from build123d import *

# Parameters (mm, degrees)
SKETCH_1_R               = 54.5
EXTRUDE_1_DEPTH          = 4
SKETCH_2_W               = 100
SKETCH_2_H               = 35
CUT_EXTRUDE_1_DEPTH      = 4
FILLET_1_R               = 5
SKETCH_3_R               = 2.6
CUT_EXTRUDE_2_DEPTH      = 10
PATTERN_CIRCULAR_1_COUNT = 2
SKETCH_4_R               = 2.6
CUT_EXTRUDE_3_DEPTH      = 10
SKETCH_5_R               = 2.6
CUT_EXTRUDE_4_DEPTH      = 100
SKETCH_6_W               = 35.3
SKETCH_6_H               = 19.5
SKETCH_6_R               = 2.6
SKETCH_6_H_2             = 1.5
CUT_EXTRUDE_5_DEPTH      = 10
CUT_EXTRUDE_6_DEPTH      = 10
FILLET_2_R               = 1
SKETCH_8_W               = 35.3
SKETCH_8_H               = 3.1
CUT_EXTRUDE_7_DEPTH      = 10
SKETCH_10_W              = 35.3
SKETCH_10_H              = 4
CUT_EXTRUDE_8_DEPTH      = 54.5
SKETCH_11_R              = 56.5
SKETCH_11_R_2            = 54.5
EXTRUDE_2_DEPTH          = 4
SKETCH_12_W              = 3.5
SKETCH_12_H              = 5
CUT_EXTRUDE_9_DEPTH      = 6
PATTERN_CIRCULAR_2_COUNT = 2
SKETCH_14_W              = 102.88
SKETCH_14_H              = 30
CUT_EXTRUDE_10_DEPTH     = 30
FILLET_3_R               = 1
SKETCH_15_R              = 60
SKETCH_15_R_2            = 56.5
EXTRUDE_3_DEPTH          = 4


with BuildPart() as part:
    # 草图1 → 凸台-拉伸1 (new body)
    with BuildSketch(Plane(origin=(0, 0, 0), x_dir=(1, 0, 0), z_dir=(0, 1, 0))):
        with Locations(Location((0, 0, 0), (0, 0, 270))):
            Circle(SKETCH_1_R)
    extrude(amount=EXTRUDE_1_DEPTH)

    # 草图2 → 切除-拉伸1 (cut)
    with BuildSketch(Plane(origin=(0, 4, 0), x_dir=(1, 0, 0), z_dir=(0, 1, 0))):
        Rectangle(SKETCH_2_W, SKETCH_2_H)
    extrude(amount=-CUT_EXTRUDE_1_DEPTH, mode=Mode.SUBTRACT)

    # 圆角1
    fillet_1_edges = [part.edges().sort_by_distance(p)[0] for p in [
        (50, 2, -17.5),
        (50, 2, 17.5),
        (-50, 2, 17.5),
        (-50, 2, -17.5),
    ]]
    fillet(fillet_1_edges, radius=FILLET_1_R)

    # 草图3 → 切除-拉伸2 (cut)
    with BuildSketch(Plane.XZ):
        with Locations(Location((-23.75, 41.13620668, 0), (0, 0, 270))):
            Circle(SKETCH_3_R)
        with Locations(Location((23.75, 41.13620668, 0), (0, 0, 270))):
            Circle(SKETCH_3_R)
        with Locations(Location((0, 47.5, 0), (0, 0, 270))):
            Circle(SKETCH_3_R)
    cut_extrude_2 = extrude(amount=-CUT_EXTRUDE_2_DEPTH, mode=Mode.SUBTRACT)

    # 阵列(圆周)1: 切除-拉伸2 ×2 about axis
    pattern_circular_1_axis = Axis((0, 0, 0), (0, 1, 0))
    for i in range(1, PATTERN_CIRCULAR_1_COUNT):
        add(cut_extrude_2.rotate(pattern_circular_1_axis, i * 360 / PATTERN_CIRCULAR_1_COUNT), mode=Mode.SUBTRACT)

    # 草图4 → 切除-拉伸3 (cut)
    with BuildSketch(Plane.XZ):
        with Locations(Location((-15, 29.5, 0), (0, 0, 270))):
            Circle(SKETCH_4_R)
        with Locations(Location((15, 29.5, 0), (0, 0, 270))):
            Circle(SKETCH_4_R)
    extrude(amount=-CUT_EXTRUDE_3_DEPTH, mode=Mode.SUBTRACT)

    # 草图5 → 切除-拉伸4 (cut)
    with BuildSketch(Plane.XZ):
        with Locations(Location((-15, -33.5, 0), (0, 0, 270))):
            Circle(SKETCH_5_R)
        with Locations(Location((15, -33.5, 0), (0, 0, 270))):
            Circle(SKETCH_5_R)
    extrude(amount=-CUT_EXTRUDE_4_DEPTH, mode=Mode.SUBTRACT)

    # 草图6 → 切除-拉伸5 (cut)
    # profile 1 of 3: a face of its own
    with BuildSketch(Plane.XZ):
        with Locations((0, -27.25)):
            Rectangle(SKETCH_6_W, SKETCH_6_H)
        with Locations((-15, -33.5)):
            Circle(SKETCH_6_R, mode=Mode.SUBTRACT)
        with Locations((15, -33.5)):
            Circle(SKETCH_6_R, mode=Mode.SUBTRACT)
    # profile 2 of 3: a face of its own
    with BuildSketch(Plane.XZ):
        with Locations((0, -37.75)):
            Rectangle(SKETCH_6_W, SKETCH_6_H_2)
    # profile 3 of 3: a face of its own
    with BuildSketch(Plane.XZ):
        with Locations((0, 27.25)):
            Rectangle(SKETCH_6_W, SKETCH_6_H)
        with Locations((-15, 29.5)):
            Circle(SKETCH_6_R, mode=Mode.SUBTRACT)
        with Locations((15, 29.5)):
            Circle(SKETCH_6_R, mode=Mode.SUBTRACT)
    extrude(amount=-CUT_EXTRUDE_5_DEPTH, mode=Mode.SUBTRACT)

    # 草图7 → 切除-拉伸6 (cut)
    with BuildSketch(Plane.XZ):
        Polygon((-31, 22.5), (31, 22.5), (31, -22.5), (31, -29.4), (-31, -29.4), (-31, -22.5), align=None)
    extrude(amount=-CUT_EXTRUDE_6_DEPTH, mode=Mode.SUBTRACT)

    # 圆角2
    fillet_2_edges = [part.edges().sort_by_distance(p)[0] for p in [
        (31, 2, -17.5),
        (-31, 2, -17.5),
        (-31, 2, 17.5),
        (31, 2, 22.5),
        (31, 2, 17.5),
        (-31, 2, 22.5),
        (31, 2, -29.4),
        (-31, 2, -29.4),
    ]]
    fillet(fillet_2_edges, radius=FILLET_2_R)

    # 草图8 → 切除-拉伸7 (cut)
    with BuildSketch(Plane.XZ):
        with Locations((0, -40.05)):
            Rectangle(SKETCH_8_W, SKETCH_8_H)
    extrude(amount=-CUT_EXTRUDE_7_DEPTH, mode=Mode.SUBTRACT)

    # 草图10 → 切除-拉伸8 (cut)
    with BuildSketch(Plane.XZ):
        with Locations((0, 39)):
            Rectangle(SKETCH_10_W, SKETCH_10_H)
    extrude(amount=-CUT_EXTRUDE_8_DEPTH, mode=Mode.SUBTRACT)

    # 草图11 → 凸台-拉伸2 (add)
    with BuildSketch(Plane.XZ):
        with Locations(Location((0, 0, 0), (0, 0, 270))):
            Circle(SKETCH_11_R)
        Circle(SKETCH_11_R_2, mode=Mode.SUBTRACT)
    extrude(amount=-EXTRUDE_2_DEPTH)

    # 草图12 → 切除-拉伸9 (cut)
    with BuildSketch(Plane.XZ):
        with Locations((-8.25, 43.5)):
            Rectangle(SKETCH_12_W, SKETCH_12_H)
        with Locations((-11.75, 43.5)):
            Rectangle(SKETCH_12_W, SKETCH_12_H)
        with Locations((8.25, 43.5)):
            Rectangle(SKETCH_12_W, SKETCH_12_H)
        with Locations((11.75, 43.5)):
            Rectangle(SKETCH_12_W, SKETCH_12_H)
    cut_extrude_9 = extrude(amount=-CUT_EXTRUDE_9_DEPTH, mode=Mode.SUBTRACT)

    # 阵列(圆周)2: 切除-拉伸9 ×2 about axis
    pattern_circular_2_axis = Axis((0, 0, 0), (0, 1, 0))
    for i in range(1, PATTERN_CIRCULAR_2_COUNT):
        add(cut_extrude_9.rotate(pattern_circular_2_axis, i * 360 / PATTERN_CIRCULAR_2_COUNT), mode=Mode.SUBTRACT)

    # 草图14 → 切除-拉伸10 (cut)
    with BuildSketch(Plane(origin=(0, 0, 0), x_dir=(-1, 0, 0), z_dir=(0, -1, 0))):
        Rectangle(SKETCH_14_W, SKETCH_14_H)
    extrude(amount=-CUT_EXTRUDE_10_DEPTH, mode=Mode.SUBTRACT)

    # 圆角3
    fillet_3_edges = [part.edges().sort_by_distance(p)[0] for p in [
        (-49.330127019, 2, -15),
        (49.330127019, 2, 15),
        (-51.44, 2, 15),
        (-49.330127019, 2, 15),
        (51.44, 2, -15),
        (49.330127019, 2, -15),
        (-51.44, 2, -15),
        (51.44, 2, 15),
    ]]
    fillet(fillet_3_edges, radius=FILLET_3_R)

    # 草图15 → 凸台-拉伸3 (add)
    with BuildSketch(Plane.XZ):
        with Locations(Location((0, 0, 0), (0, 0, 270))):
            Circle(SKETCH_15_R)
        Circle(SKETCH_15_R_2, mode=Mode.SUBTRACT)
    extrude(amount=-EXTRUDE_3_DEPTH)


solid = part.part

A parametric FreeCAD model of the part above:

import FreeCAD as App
import Part
import Sketcher


def edges_at(feature, points):
    """Names of the edges that pass closest to the given points."""
    edges = feature.Shape.Edges
    near = lambda p: min(range(len(edges)), key=lambda i: edges[i].distToShape(Part.Vertex(*p))[0])
    return sorted({f"Edge{near(p) + 1}" for p in points})


def add_polygon(sketch, points):
    """Adds a closed chain of lines whose ends are joined by coincident constraints."""
    first, n = sketch.GeometryCount, len(points)
    for a, b in zip(points, points[1:] + points[:1]):
        sketch.addGeometry(Part.LineSegment(App.Vector(*a, 0), App.Vector(*b, 0)), False)
    for i in range(n):
        sketch.addConstraint(Sketcher.Constraint("Coincident", first + i, 2, first + (i + 1) % n, 1))

doc = App.newDocument("Part")
body = doc.addObject("PartDesign::Body", "Body")

sketch1 = body.newObject("Sketcher::SketchObject", "Sketch")
sketch1.AttachmentSupport = (doc.getObject("XZ_Plane"), [""])
sketch1.MapMode = "FlatFace"
sketch1.addGeometry(Part.Circle(App.Vector(0, 0, 0), App.Vector(0, 0, 1), 54), False)
sketch1.addConstraint(Sketcher.Constraint("Coincident", 0, 3, -1, 1))
sketch1.addConstraint(Sketcher.Constraint("Diameter", 0, 109.0))
pad1 = body.newObject("PartDesign::Pad", "Pad")
pad1.Profile = sketch1
pad1.Length = 4
pad1.Reversed = True

sketch2 = body.newObject("Sketcher::SketchObject", "Sketch001")
sketch2.AttachmentSupport = (doc.getObject("XZ_Plane"), [""])
sketch2.MapMode = "FlatFace"
sketch2.AttachmentOffset = App.Placement(App.Vector(0, 0, -4), App.Rotation())
add_polygon(sketch2, [(-50, -18), (-50, 18), (50, 18), (50, -18)])
sketch2.addConstraint(Sketcher.Constraint("Vertical", 0))
sketch2.addConstraint(Sketcher.Constraint("Horizontal", 1))
sketch2.addConstraint(Sketcher.Constraint("Vertical", 2))
sketch2.addConstraint(Sketcher.Constraint("Horizontal", 3))
sketch2.addConstraint(Sketcher.Constraint("Symmetric", 0, 2, 2, 2, -1, 1))
sketch2.addConstraint(Sketcher.Constraint("DistanceX", 1, 1, 1, 2, 100.0))
sketch2.addConstraint(Sketcher.Constraint("DistanceY", 0, 1, 0, 2, 35.0))
pocket1 = body.newObject("PartDesign::Pocket", "Pocket")
pocket1.Profile = sketch2
pocket1.Length = 4
pocket1.Reversed = True
doc.recompute()

fillet = body.newObject("PartDesign::Fillet", "Fillet")
fillet.Base = (pocket1, edges_at(pocket1, [
    (50, 2, -17.5),
    (50, 2, 17.5),
    (-50, 2, 17.5),
    (-50, 2, -17.5),
]))
fillet.Radius = 5

sketch3 = body.newObject("Sketcher::SketchObject", "Sketch002")
sketch3.AttachmentSupport = (doc.getObject("XZ_Plane"), [""])
sketch3.MapMode = "FlatFace"
sketch3.addGeometry(Part.Circle(App.Vector(-23.8, 41.1, 0), App.Vector(0, 0, 1), 2.6), False)
sketch3.addGeometry(Part.Circle(App.Vector(23.8, 41.1, 0), App.Vector(0, 0, 1), 2.6), False)
sketch3.addGeometry(Part.Circle(App.Vector(0, 47.5, 0), App.Vector(0, 0, 1), 2.6), False)
sketch3.addConstraint(Sketcher.Constraint("Equal", 0, 1))
sketch3.addConstraint(Sketcher.Constraint("Equal", 1, 2))
sketch3.addConstraint(Sketcher.Constraint("Symmetric", 0, 3, 1, 3, -2))
sketch3.addConstraint(Sketcher.Constraint("PointOnObject", 2, 3, -2))
sketch3.addConstraint(Sketcher.Constraint("Diameter", 0, 5.2))
sketch3.addConstraint(Sketcher.Constraint("DistanceY", -1, 1, 2, 3, 47.5))
sketch3.addConstraint(Sketcher.Constraint("DistanceX", 0, 3, 1, 3, 47.5))
sketch3.addConstraint(Sketcher.Constraint("DistanceY", -1, 1, 0, 3, 41.136207))
pocket2 = body.newObject("PartDesign::Pocket", "Pocket001")
pocket2.Profile = sketch3
pocket2.Length = 10
doc.recompute()

polarpattern = body.newObject("PartDesign::PolarPattern", "PolarPattern")
polarpattern.Originals = [pocket2]
polarpattern.Axis = (doc.getObject("Y_Axis"), [""])
polarpattern.Angle = 360
polarpattern.Occurrences = 2
body.Tip = polarpattern

sketch4 = body.newObject("Sketcher::SketchObject", "Sketch003")
sketch4.AttachmentSupport = (doc.getObject("XZ_Plane"), [""])
sketch4.MapMode = "FlatFace"
sketch4.addGeometry(Part.Circle(App.Vector(-15, 29.5, 0), App.Vector(0, 0, 1), 2.6), False)
sketch4.addGeometry(Part.Circle(App.Vector(15, 29.5, 0), App.Vector(0, 0, 1), 2.6), False)
sketch4.addConstraint(Sketcher.Constraint("Equal", 0, 1))
sketch4.addConstraint(Sketcher.Constraint("Symmetric", 0, 3, 1, 3, -2))
sketch4.addConstraint(Sketcher.Constraint("Diameter", 0, 5.2))
sketch4.addConstraint(Sketcher.Constraint("DistanceX", 0, 3, -1, 1, 15.0))
sketch4.addConstraint(Sketcher.Constraint("DistanceY", -1, 1, 0, 3, 29.5))
pocket3 = body.newObject("PartDesign::Pocket", "Pocket002")
pocket3.Profile = sketch4
pocket3.Length = 10

sketch5 = body.newObject("Sketcher::SketchObject", "Sketch004")
sketch5.AttachmentSupport = (doc.getObject("XZ_Plane"), [""])
sketch5.MapMode = "FlatFace"
sketch5.addGeometry(Part.Circle(App.Vector(-15, -33.5, 0), App.Vector(0, 0, 1), 2.6), False)
sketch5.addGeometry(Part.Circle(App.Vector(15, -33.5, 0), App.Vector(0, 0, 1), 2.6), False)
sketch5.addConstraint(Sketcher.Constraint("Equal", 0, 1))
sketch5.addConstraint(Sketcher.Constraint("Symmetric", 0, 3, 1, 3, -2))
sketch5.addConstraint(Sketcher.Constraint("Diameter", 0, 5.2))
sketch5.addConstraint(Sketcher.Constraint("DistanceX", 0, 3, -1, 1, 15.0))
sketch5.addConstraint(Sketcher.Constraint("DistanceY", 0, 3, -1, 1, 33.5))
pocket4 = body.newObject("PartDesign::Pocket", "Pocket003")
pocket4.Profile = sketch5
pocket4.Length = 100

sketch6 = body.newObject("Sketcher::SketchObject", "Sketch005")
sketch6.AttachmentSupport = (doc.getObject("XZ_Plane"), [""])
sketch6.MapMode = "FlatFace"
add_polygon(sketch6, [(-17.6, -17.5), (-17.6, -38.5), (17.6, -38.5), (17.6, -17.5)])
sketch6.addGeometry(Part.Circle(App.Vector(-15, -33.5, 0), App.Vector(0, 0, 1), 2.6), False)
sketch6.addGeometry(Part.Circle(App.Vector(15, -33.5, 0), App.Vector(0, 0, 1), 2.6), False)
add_polygon(sketch6, [(-17.6, 37), (-17.6, 17.5), (17.6, 17.5), (17.6, 37)])
sketch6.addGeometry(Part.Circle(App.Vector(-15, 29.5, 0), App.Vector(0, 0, 1), 2.6), False)
sketch6.addGeometry(Part.Circle(App.Vector(15, 29.5, 0), App.Vector(0, 0, 1), 2.6), False)
sketch6.addConstraint(Sketcher.Constraint("Vertical", 0))
sketch6.addConstraint(Sketcher.Constraint("Horizontal", 1))
sketch6.addConstraint(Sketcher.Constraint("Vertical", 2))
sketch6.addConstraint(Sketcher.Constraint("Horizontal", 3))
sketch6.addConstraint(Sketcher.Constraint("Vertical", 6))
sketch6.addConstraint(Sketcher.Constraint("Horizontal", 7))
sketch6.addConstraint(Sketcher.Constraint("Vertical", 8))
sketch6.addConstraint(Sketcher.Constraint("Horizontal", 9))
sketch6.addConstraint(Sketcher.Constraint("Equal", 4, 5))
sketch6.addConstraint(Sketcher.Constraint("Equal", 5, 10))
sketch6.addConstraint(Sketcher.Constraint("Equal", 10, 11))
sketch6.addConstraint(Sketcher.Constraint("Symmetric", 2, 2, 6, 2, -1, 1))
sketch6.addConstraint(Sketcher.Constraint("Symmetric", 4, 3, 5, 3, -2))
sketch6.addConstraint(Sketcher.Constraint("Symmetric", 10, 3, 11, 3, -2))
sketch6.addConstraint(Sketcher.Constraint("Vertical", 4, 3, 10, 3))
sketch6.addConstraint(Sketcher.Constraint("Vertical", 3, 2, 6, 2))
sketch6.addConstraint(Sketcher.Constraint("Vertical", 2, 2, 7, 2))
sketch6.addConstraint(Sketcher.Constraint("Diameter", 4, 5.2))
sketch6.addConstraint(Sketcher.Constraint("DistanceY", 0, 2, 0, 1, 21.0))
sketch6.addConstraint(Sketcher.Constraint("DistanceX", 1, 1, 1, 2, 35.3))
sketch6.addConstraint(Sketcher.Constraint("DistanceY", 6, 2, 6, 1, 19.5))
sketch6.addConstraint(Sketcher.Constraint("DistanceX", 4, 3, -1, 1, 15.0))
sketch6.addConstraint(Sketcher.Constraint("DistanceY", -1, 1, 8, 2, 37.0))
sketch6.addConstraint(Sketcher.Constraint("DistanceY", 4, 3, 10, 3, 63.0))
sketch6.addConstraint(Sketcher.Constraint("DistanceY", 0, 2, 4, 3, 5.0))
pocket5 = body.newObject("PartDesign::Pocket", "Pocket004")
pocket5.Profile = sketch6
pocket5.Length = 10

sketch7 = body.newObject("Sketcher::SketchObject", "Sketch006")
sketch7.AttachmentSupport = (doc.getObject("XZ_Plane"), [""])
sketch7.MapMode = "FlatFace"
add_polygon(sketch7, [(31, 22), (-31, 22), (-31, -29), (31, -29)])
sketch7.addConstraint(Sketcher.Constraint("Horizontal", 0))
sketch7.addConstraint(Sketcher.Constraint("Vertical", 1))
sketch7.addConstraint(Sketcher.Constraint("Horizontal", 2))
sketch7.addConstraint(Sketcher.Constraint("Vertical", 3))
sketch7.addConstraint(Sketcher.Constraint("DistanceX", 0, 2, 0, 1, 62.0))
sketch7.addConstraint(Sketcher.Constraint("DistanceY", 1, 2, 1, 1, 51.9))
sketch7.addConstraint(Sketcher.Constraint("DistanceX", 0, 2, -1, 1, 31.0))
sketch7.addConstraint(Sketcher.Constraint("DistanceY", -1, 1, 0, 2, 22.5))
pocket6 = body.newObject("PartDesign::Pocket", "Pocket005")
pocket6.Profile = sketch7
pocket6.Length = 10
doc.recompute()

fillet2 = body.newObject("PartDesign::Fillet", "Fillet001")
fillet2.Base = (pocket6, edges_at(pocket6, [
    (31, 2, -17.5),
    (-31, 2, -17.5),
    (-31, 2, 17.5),
    (31, 2, 22.5),
    (31, 2, 17.5),
    (-31, 2, 22.5),
    (31, 2, -29.4),
    (-31, 2, -29.4),
]))
fillet2.Radius = 1

sketch8 = body.newObject("Sketcher::SketchObject", "Sketch007")
sketch8.AttachmentSupport = (doc.getObject("XZ_Plane"), [""])
sketch8.MapMode = "FlatFace"
add_polygon(sketch8, [(-17.6, -38.5), (-17.6, -41.6), (17.6, -41.6), (17.6, -38.5)])
sketch8.addConstraint(Sketcher.Constraint("Vertical", 0))
sketch8.addConstraint(Sketcher.Constraint("Horizontal", 1))
sketch8.addConstraint(Sketcher.Constraint("Vertical", 2))
sketch8.addConstraint(Sketcher.Constraint("Horizontal", 3))
sketch8.addConstraint(Sketcher.Constraint("DistanceX", 1, 1, 1, 2, 35.3))
sketch8.addConstraint(Sketcher.Constraint("DistanceY", 0, 2, 0, 1, 3.1))
sketch8.addConstraint(Sketcher.Constraint("DistanceY", 0, 2, -1, 1, 41.6))
sketch8.addConstraint(Sketcher.Constraint("DistanceX", 0, 2, -1, 1, 17.65))
pocket7 = body.newObject("PartDesign::Pocket", "Pocket006")
pocket7.Profile = sketch8
pocket7.Length = 10

sketch9 = body.newObject("Sketcher::SketchObject", "Sketch008")
sketch9.AttachmentSupport = (doc.getObject("XZ_Plane"), [""])
sketch9.MapMode = "FlatFace"
add_polygon(sketch9, [(-17.6, 41), (-17.6, 37), (17.6, 37), (17.6, 41)])
sketch9.addConstraint(Sketcher.Constraint("Vertical", 0))
sketch9.addConstraint(Sketcher.Constraint("Horizontal", 1))
sketch9.addConstraint(Sketcher.Constraint("Vertical", 2))
sketch9.addConstraint(Sketcher.Constraint("Horizontal", 3))
sketch9.addConstraint(Sketcher.Constraint("DistanceY", 0, 2, 0, 1, 4.0))
sketch9.addConstraint(Sketcher.Constraint("DistanceX", 1, 1, 1, 2, 35.3))
sketch9.addConstraint(Sketcher.Constraint("DistanceY", -1, 1, 0, 2, 37.0))
sketch9.addConstraint(Sketcher.Constraint("DistanceX", 0, 2, -1, 1, 17.65))
pocket8 = body.newObject("PartDesign::Pocket", "Pocket007")
pocket8.Profile = sketch9
pocket8.Length = 54.5

sketch10 = body.newObject("Sketcher::SketchObject", "Sketch009")
sketch10.AttachmentSupport = (doc.getObject("XZ_Plane"), [""])
sketch10.MapMode = "FlatFace"
sketch10.addGeometry(Part.Circle(App.Vector(0, 0, 0), App.Vector(0, 0, 1), 56), False)
sketch10.addGeometry(Part.Circle(App.Vector(0, 0, 0), App.Vector(0, 0, 1), 54), False)
sketch10.addConstraint(Sketcher.Constraint("Coincident", 0, 3, -1, 1))
sketch10.addConstraint(Sketcher.Constraint("Coincident", 1, 3, -1, 1))
sketch10.addConstraint(Sketcher.Constraint("Diameter", 0, 113.0))
sketch10.addConstraint(Sketcher.Constraint("Diameter", 1, 109.0))
pad2 = body.newObject("PartDesign::Pad", "Pad001")
pad2.Profile = sketch10
pad2.Length = 4
pad2.Reversed = True

sketch11 = body.newObject("Sketcher::SketchObject", "Sketch010")
sketch11.AttachmentSupport = (doc.getObject("XZ_Plane"), [""])
sketch11.MapMode = "FlatFace"
add_polygon(sketch11, [(-6, 41), (-6, 46), (-14, 46), (-14, 41)])
add_polygon(sketch11, [(6, 46), (6, 41), (14, 41), (14, 46)])
sketch11.addConstraint(Sketcher.Constraint("Vertical", 0))
sketch11.addConstraint(Sketcher.Constraint("Horizontal", 1))
sketch11.addConstraint(Sketcher.Constraint("Vertical", 2))
sketch11.addConstraint(Sketcher.Constraint("Horizontal", 3))
sketch11.addConstraint(Sketcher.Constraint("Vertical", 4))
sketch11.addConstraint(Sketcher.Constraint("Horizontal", 5))
sketch11.addConstraint(Sketcher.Constraint("Vertical", 6))
sketch11.addConstraint(Sketcher.Constraint("Horizontal", 7))
sketch11.addConstraint(Sketcher.Constraint("Symmetric", 3, 2, 4, 2, -2))
sketch11.addConstraint(Sketcher.Constraint("Symmetric", 1, 2, 6, 2, -2))
sketch11.addConstraint(Sketcher.Constraint("DistanceX", 1, 2, 1, 1, 7.0))
sketch11.addConstraint(Sketcher.Constraint("DistanceY", 0, 1, 0, 2, 5.0))
sketch11.addConstraint(Sketcher.Constraint("DistanceY", -1, 1, 0, 2, 46.0))
sketch11.addConstraint(Sketcher.Constraint("DistanceX", 3, 2, 4, 2, 13.0))
pocket9 = body.newObject("PartDesign::Pocket", "Pocket008")
pocket9.Profile = sketch11
pocket9.Length = 6
doc.recompute()

polarpattern2 = body.newObject("PartDesign::PolarPattern", "PolarPattern001")
polarpattern2.Originals = [pocket9]
polarpattern2.Axis = (doc.getObject("Y_Axis"), [""])
polarpattern2.Angle = 360
polarpattern2.Occurrences = 2
body.Tip = polarpattern2

sketch12 = body.newObject("Sketcher::SketchObject", "Sketch011")
sketch12.AttachmentSupport = (doc.getObject("XZ_Plane"), [""])
sketch12.MapMode = "FlatFace"
add_polygon(sketch12, [(51, -15), (51, 15), (-51, 15), (-51, -15)])
sketch12.addConstraint(Sketcher.Constraint("Vertical", 0))
sketch12.addConstraint(Sketcher.Constraint("Horizontal", 1))
sketch12.addConstraint(Sketcher.Constraint("Vertical", 2))
sketch12.addConstraint(Sketcher.Constraint("Horizontal", 3))
sketch12.addConstraint(Sketcher.Constraint("Symmetric", 0, 2, 2, 2, -1, 1))
sketch12.addConstraint(Sketcher.Constraint("DistanceY", 0, 1, 0, 2, 30.0))
sketch12.addConstraint(Sketcher.Constraint("DistanceX", 1, 2, 1, 1, 102.88))
pocket10 = body.newObject("PartDesign::Pocket", "Pocket009")
pocket10.Profile = sketch12
pocket10.Length = 30
doc.recompute()

fillet3 = body.newObject("PartDesign::Fillet", "Fillet002")
fillet3.Base = (pocket10, edges_at(pocket10, [
    (-49.33, 2, -15),
    (49.33, 2, 15),
    (-51.44, 2, 15),
    (-49.33, 2, 15),
    (51.44, 2, -15),
    (49.33, 2, -15),
    (-51.44, 2, -15),
    (51.44, 2, 15),
]))
fillet3.Radius = 1

sketch13 = body.newObject("Sketcher::SketchObject", "Sketch012")
sketch13.AttachmentSupport = (doc.getObject("XZ_Plane"), [""])
sketch13.MapMode = "FlatFace"
sketch13.addGeometry(Part.Circle(App.Vector(0, 0, 0), App.Vector(0, 0, 1), 60), False)
sketch13.addGeometry(Part.Circle(App.Vector(0, 0, 0), App.Vector(0, 0, 1), 56), False)
sketch13.addConstraint(Sketcher.Constraint("Coincident", 0, 3, -1, 1))
sketch13.addConstraint(Sketcher.Constraint("Coincident", 1, 3, -1, 1))
sketch13.addConstraint(Sketcher.Constraint("Diameter", 0, 120.0))
sketch13.addConstraint(Sketcher.Constraint("Diameter", 1, 113.0))
pad3 = body.newObject("PartDesign::Pad", "Pad002")
pad3.Profile = sketch13
pad3.Length = 4
pad3.Reversed = True

doc.recompute()
